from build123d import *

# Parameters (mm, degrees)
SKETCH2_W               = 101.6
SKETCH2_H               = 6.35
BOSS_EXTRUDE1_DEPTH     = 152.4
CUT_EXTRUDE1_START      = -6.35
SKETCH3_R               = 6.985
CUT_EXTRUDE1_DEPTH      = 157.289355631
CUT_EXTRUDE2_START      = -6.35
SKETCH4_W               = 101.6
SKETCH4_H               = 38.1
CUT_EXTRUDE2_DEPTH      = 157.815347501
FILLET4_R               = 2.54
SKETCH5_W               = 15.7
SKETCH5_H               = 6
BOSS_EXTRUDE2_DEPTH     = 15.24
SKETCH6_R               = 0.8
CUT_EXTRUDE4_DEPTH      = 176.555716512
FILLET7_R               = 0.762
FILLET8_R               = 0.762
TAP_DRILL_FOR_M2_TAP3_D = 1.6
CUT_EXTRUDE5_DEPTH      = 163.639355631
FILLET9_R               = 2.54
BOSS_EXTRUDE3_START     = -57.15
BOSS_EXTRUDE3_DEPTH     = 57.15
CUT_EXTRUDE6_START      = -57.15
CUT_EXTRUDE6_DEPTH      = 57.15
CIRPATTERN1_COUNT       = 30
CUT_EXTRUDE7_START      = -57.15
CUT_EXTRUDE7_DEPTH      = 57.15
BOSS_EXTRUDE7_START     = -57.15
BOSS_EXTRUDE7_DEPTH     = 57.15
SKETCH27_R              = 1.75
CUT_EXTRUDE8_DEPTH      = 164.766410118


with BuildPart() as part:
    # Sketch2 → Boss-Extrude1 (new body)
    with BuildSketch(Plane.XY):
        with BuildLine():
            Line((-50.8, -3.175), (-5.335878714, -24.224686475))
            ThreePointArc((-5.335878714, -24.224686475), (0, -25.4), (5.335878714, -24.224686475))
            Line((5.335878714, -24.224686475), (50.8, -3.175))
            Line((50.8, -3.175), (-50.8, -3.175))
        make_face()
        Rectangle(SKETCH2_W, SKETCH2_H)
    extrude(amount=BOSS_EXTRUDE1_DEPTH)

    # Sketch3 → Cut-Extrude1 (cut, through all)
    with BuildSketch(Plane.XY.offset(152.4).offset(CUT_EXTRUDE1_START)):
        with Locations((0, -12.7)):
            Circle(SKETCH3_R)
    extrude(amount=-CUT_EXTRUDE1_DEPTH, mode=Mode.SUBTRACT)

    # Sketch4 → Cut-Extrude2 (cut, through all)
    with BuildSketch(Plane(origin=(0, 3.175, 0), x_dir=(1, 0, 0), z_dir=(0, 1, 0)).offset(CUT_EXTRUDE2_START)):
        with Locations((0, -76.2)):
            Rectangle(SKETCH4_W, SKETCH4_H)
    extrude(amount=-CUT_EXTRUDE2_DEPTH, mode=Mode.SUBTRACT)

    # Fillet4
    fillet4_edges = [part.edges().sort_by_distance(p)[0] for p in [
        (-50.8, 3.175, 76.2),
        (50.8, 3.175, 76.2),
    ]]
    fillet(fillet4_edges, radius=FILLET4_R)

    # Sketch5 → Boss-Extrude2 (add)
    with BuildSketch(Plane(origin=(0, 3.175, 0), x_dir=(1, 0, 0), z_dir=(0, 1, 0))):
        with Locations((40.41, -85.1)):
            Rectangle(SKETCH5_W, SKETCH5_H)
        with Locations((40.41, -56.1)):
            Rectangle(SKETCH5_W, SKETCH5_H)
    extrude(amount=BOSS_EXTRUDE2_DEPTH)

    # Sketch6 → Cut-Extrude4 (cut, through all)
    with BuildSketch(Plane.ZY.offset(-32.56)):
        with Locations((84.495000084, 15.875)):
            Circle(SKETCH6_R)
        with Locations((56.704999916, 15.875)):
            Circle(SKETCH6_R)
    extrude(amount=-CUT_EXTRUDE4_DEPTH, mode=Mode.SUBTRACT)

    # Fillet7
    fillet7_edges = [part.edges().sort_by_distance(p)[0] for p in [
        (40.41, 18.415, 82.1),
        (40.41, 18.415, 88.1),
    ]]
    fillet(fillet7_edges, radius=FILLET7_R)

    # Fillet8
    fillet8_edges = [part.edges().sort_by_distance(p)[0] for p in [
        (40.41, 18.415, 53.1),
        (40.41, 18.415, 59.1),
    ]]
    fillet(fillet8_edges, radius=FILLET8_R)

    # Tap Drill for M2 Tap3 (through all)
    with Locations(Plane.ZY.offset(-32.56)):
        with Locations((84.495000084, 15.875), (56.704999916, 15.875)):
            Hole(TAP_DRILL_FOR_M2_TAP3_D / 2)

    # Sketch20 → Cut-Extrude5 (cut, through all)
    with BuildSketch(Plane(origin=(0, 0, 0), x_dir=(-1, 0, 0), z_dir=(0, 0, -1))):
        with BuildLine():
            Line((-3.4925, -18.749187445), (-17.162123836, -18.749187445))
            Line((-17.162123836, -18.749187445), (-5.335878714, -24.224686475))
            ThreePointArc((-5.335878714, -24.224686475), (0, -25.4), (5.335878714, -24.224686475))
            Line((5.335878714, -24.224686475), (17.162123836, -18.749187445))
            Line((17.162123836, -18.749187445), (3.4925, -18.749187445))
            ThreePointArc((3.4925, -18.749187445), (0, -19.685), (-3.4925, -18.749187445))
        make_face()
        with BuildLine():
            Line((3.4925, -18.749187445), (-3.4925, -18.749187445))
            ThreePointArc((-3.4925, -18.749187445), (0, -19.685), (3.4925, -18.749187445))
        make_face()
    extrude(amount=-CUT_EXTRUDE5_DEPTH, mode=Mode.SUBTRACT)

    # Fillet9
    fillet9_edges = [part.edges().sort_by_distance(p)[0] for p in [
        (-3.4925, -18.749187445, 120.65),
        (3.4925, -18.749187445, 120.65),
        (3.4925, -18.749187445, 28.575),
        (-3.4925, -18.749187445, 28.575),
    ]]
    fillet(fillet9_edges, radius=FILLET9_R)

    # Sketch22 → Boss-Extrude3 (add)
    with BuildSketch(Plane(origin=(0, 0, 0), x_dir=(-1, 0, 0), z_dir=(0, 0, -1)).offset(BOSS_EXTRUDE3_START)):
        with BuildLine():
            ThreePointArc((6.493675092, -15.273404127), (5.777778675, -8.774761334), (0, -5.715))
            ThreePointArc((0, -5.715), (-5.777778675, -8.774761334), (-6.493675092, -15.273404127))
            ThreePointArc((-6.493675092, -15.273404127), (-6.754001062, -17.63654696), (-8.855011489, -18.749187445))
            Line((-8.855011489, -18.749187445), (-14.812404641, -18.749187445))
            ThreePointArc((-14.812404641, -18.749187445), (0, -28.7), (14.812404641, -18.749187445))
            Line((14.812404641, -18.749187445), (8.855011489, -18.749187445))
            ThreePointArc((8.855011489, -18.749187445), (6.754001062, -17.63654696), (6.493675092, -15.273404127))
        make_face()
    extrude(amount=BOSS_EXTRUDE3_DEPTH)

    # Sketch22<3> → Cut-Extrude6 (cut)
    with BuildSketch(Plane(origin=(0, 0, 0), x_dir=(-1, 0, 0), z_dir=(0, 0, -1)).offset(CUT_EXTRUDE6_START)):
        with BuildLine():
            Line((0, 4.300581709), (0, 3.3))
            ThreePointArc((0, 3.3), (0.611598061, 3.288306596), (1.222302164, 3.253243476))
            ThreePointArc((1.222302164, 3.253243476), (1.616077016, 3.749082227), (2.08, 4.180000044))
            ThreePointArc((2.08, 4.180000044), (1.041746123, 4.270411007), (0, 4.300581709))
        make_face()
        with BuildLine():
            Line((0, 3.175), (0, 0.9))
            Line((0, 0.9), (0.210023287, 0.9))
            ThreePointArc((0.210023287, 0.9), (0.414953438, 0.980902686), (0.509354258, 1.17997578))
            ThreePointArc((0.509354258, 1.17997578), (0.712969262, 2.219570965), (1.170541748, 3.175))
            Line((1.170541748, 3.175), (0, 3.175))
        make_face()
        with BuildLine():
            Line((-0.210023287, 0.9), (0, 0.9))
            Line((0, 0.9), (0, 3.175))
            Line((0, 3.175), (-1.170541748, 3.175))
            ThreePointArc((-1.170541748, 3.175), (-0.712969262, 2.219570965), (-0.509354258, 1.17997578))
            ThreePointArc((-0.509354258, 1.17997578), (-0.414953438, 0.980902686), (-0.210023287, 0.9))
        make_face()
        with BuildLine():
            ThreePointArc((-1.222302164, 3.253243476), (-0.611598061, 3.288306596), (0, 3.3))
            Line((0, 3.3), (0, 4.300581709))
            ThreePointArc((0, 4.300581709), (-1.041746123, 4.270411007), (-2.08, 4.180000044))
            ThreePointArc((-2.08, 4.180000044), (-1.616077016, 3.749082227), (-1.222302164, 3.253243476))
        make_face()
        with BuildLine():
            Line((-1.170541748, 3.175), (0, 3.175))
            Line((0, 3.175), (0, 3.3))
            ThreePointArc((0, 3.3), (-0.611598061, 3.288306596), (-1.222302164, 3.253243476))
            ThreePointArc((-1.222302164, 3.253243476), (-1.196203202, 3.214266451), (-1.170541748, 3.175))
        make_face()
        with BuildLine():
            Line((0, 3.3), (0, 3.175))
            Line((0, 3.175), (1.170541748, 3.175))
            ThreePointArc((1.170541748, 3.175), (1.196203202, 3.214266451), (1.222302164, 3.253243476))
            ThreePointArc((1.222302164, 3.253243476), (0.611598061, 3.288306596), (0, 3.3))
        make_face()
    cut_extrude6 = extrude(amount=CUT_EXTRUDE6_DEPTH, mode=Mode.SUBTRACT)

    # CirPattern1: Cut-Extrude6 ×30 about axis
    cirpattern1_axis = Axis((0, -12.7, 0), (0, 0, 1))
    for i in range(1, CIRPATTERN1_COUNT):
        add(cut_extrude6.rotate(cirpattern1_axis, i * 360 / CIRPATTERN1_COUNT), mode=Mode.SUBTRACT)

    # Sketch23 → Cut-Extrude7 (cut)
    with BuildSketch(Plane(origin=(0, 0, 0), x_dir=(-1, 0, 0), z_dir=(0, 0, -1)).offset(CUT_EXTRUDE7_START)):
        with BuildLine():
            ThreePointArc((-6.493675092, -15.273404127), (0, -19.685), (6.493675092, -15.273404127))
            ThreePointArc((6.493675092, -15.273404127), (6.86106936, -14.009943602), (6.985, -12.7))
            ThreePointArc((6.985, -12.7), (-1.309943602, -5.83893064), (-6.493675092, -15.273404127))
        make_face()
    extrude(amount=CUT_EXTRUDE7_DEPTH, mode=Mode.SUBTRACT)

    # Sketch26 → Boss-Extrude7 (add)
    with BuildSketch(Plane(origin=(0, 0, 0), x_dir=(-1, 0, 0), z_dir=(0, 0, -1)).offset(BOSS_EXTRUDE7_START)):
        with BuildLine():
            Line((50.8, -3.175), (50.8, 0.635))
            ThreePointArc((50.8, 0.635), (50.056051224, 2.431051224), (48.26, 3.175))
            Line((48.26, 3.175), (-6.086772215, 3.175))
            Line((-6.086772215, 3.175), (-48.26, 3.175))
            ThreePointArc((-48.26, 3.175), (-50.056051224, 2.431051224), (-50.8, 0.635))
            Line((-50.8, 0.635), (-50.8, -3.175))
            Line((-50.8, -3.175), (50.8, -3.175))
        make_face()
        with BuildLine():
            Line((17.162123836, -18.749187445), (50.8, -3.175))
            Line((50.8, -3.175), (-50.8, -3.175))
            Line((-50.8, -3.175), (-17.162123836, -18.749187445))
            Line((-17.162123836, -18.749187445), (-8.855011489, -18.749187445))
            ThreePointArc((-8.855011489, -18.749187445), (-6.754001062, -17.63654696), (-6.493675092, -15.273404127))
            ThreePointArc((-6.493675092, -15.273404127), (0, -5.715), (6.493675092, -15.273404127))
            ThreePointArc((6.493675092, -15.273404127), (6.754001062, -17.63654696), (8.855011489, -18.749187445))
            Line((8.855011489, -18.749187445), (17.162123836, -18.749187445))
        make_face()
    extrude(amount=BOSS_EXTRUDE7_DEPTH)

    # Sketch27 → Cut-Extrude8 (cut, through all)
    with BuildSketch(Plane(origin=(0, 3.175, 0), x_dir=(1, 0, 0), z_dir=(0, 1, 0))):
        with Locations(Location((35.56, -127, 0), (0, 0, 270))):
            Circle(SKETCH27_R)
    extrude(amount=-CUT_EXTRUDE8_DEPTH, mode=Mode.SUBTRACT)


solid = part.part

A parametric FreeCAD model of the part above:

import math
import FreeCAD as App
import Part
import Sketcher
Q = App.Units.Quantity


def edges_at(feature, points):
    """Names of the edges that pass closest to the given points."""
    edges = feature.Shape.Edges
    near = lambda p: min(range(len(edges)), key=lambda i: edges[i].distToShape(Part.Vertex(*p))[0])
    return sorted({f"Edge{near(p) + 1}" for p in points})


def add_polygon(sketch, points):
    """Adds a closed chain of lines whose ends are joined by coincident constraints."""
    first, n = sketch.GeometryCount, len(points)
    for a, b in zip(points, points[1:] + points[:1]):
        sketch.addGeometry(Part.LineSegment(App.Vector(*a, 0), App.Vector(*b, 0)), False)
    for i in range(n):
        sketch.addConstraint(Sketcher.Constraint("Coincident", first + i, 2, first + (i + 1) % n, 1))

doc = App.newDocument("Part")
body = doc.addObject("PartDesign::Body", "Body")

# Sketch on XY plane
sketch1 = body.newObject("Sketcher::SketchObject", "Sketch")
sketch1.AttachmentSupport = (doc.getObject("XY_Plane"), [""])
sketch1.MapMode = "FlatFace"
sketch1.addGeometry(Part.LineSegment(App.Vector(-51, -3, 0), App.Vector(-5, -24, 0)), False)
sketch1.addGeometry(Part.ArcOfCircle(Part.Circle(App.Vector(0, -13, 0), App.Vector(0, 0, 1), 13), math.radians(-115), math.radians(-65)), False)
sketch1.addGeometry(Part.LineSegment(App.Vector(5, -24, 0), App.Vector(51, -3, 0)), False)
sketch1.addGeometry(Part.LineSegment(App.Vector(51, -3, 0), App.Vector(51, 3, 0)), False)
sketch1.addGeometry(Part.LineSegment(App.Vector(51, 3, 0), App.Vector(-51, 3, 0)), False)
sketch1.addGeometry(Part.LineSegment(App.Vector(-51, 3, 0), App.Vector(-51, -3, 0)), False)
sketch1.addConstraint(Sketcher.Constraint("Tangent", 0, 2, 1, 1))
sketch1.addConstraint(Sketcher.Constraint("Tangent", 1, 2, 2, 1))
sketch1.addConstraint(Sketcher.Constraint("Coincident", 2, 2, 3, 1))
sketch1.addConstraint(Sketcher.Constraint("Coincident", 3, 2, 4, 1))
sketch1.addConstraint(Sketcher.Constraint("Coincident", 4, 2, 5, 1))
sketch1.addConstraint(Sketcher.Constraint("Coincident", 5, 2, 0, 1))
sketch1.addConstraint(Sketcher.Constraint("Vertical", 3))
sketch1.addConstraint(Sketcher.Constraint("Horizontal", 4))
sketch1.addConstraint(Sketcher.Constraint("Vertical", 5))
sketch1.addConstraint(Sketcher.Constraint("Symmetric", 2, 2, 4, 2, -1, 1))
sketch1.addConstraint(Sketcher.Constraint("Symmetric", 0, 2, 1, 2, -2))
sketch1.addConstraint(Sketcher.Constraint("Radius", 1, Q("0.5 in")))
sketch1.addConstraint(Sketcher.Constraint("DistanceX", 4, 2, 4, 1, Q("4 in")))
sketch1.addConstraint(Sketcher.Constraint("DistanceY", 3, 1, 3, 2, Q("0.25 in")))
sketch1.addConstraint(Sketcher.Constraint("DistanceY", 1, 3, -1, 1, Q("0.5 in")))
pad1 = body.newObject("PartDesign::Pad", "Pad")
pad1.Profile = sketch1
pad1.Length = Q("6 in")

# Sketch on XY plane
sketch2 = body.newObject("Sketcher::SketchObject", "Sketch001")
sketch2.AttachmentSupport = (doc.getObject("XY_Plane"), [""])
sketch2.MapMode = "FlatFace"
sketch2.AttachmentOffset = App.Placement(App.Vector(0, 0, 5.75 * 25.4), App.Rotation())
sketch2.addGeometry(Part.Circle(App.Vector(0, -13, 0), App.Vector(0, 0, 1), 7), False)
sketch2.addConstraint(Sketcher.Constraint("PointOnObject", 0, 3, -2))
sketch2.addConstraint(Sketcher.Constraint("Diameter", 0, Q("0.55 in")))
sketch2.addConstraint(Sketcher.Constraint("DistanceY", 0, 3, -1, 1, Q("0.5 in")))
pocket1 = body.newObject("PartDesign::Pocket", "Pocket")
pocket1.Profile = sketch2
pocket1.Type = "ThroughAll"

# Sketch on XZ plane
sketch3 = body.newObject("Sketcher::SketchObject", "Sketch002")
sketch3.AttachmentSupport = (doc.getObject("XZ_Plane"), [""])
sketch3.MapMode = "FlatFace"
sketch3.AttachmentOffset = App.Placement(App.Vector(0, 0, 0.125 * 25.4), App.Rotation())
add_polygon(sketch3, [(-51, 57), (-51, 95), (51, 95), (51, 57)])  # lines 0-3
sketch3.addConstraint(Sketcher.Constraint("Vertical", 0))
sketch3.addConstraint(Sketcher.Constraint("Horizontal", 1))
sketch3.addConstraint(Sketcher.Constraint("Vertical", 2))
sketch3.addConstraint(Sketcher.Constraint("Horizontal", 3))
sketch3.addConstraint(Sketcher.Constraint("DistanceX", 1, 1, 1, 2, Q("4 in")))
sketch3.addConstraint(Sketcher.Constraint("DistanceY", 0, 1, 0, 2, Q("1.5 in")))
sketch3.addConstraint(Sketcher.Constraint("DistanceX", 0, 2, -1, 1, Q("2 in")))
sketch3.addConstraint(Sketcher.Constraint("DistanceY", -1, 1, 0, 2, Q("3.75 in")))
pocket2 = body.newObject("PartDesign::Pocket", "Pocket001")
pocket2.Profile = sketch3
pocket2.Type = "ThroughAll"
pocket2.Reversed = True
doc.recompute()

fillet = body.newObject("PartDesign::Fillet", "Fillet")
fillet.Base = (pocket2, edges_at(pocket2, [(-50.8, 3.175, 76.2), (50.8, 3.175, 76.2)]))
fillet.Radius = Q("0.1 in")

# Sketch on XZ plane
sketch4 = body.newObject("Sketcher::SketchObject", "Sketch003")
sketch4.AttachmentSupport = (doc.getObject("XZ_Plane"), [""])
sketch4.MapMode = "FlatFace"
sketch4.AttachmentOffset = App.Placement(App.Vector(0, 0, -0.125 * 25.4), App.Rotation())
add_polygon(sketch4, [(33, 82), (33, 88), (48, 88), (48, 82)])  # lines 0-3
add_polygon(sketch4, [(33, 53), (33, 59), (48, 59), (48, 53)])  # lines 4-7
sketch4.addConstraint(Sketcher.Constraint("Vertical", 0))
sketch4.addConstraint(Sketcher.Constraint("Horizontal", 1))
sketch4.addConstraint(Sketcher.Constraint("Vertical", 2))
sketch4.addConstraint(Sketcher.Constraint("Horizontal", 3))
sketch4.addConstraint(Sketcher.Constraint("Vertical", 4))
sketch4.addConstraint(Sketcher.Constraint("Horizontal", 5))
sketch4.addConstraint(Sketcher.Constraint("Vertical", 6))
sketch4.addConstraint(Sketcher.Constraint("Horizontal", 7))
sketch4.addConstraint(Sketcher.Constraint("Vertical", 3, 2, 4, 2))
sketch4.addConstraint(Sketcher.Constraint("Vertical", 2, 2, 5, 2))
sketch4.addConstraint(Sketcher.Constraint("Equal", 2, 4))
sketch4.addConstraint(Sketcher.Constraint("DistanceX", -1, 1, 1, 2, Q("1.9 in")))
sketch4.addConstraint(Sketcher.Constraint("DistanceX", 1, 1, 1, 2, 15.7))
sketch4.addConstraint(Sketcher.Constraint("DistanceY", 0, 1, 0, 2, 6.0))
sketch4.addConstraint(Sketcher.Constraint("DistanceY", -1, 1, 0, 2, 88.1))
sketch4.addConstraint(Sketcher.Constraint("DistanceY", -1, 1, 4, 2, 59.1))
pad2 = body.newObject("PartDesign::Pad", "Pad001")
pad2.Profile = sketch4
pad2.Length = Q("0.6 in")
pad2.Reversed = True

# Sketch on YZ plane
sketch5 = body.newObject("Sketcher::SketchObject", "Sketch004")
sketch5.AttachmentSupport = (doc.getObject("YZ_Plane"), [""])
sketch5.MapMode = "FlatFace"
sketch5.AttachmentOffset = App.Placement(App.Vector(0, 0, 32.56), App.Rotation())
sketch5.addGeometry(Part.Circle(App.Vector(15.9, 84.5, 0), App.Vector(0, 0, 1), 0.8), False)
sketch5.addGeometry(Part.Circle(App.Vector(15.9, 56.7, 0), App.Vector(0, 0, 1), 0.8), False)
sketch5.addConstraint(Sketcher.Constraint("Equal", 0, 1))
sketch5.addConstraint(Sketcher.Constraint("Vertical", 0, 3, 1, 3))
sketch5.addConstraint(Sketcher.Constraint("Diameter", 0, 1.6))
sketch5.addConstraint(Sketcher.Constraint("DistanceX", -1, 1, 0, 3, Q("0.625 in")))
sketch5.addConstraint(Sketcher.Constraint("DistanceY", -1, 1, 0, 3, 84.495))
sketch5.addConstraint(Sketcher.Constraint("DistanceY", -1, 1, 1, 3, 56.705))
pocket3 = body.newObject("PartDesign::Pocket", "Pocket002")
pocket3.Profile = sketch5
pocket3.Type = "ThroughAll"
pocket3.Reversed = True
doc.recompute()

fillet2 = body.newObject("PartDesign::Fillet", "Fillet001")
fillet2.Base = (pocket3, edges_at(pocket3, [(40.41, 18.415, 82.1), (40.41, 18.415, 88.1)]))
fillet2.Radius = Q("0.03 in")
doc.recompute()

fillet3 = body.newObject("PartDesign::Fillet", "Fillet002")
fillet3.Base = (fillet2, edges_at(fillet2, [(40.41, 18.415, 53.1), (40.41, 18.415, 59.1)]))
fillet3.Radius = Q("0.03 in")

# Sketch on YZ plane
sketch6 = body.newObject("Sketcher::SketchObject", "Sketch005")
sketch6.AttachmentSupport = (doc.getObject("YZ_Plane"), [""])
sketch6.MapMode = "FlatFace"
sketch6.AttachmentOffset = App.Placement(App.Vector(0, 0, 32.56), App.Rotation())
sketch6.addGeometry(Part.Circle(App.Vector(15.9, 84.5, 0), App.Vector(0, 0, 1), 0.8), False)
sketch6.addGeometry(Part.Circle(App.Vector(15.9, 56.7, 0), App.Vector(0, 0, 1), 0.8), False)
sketch6.addConstraint(Sketcher.Constraint("Equal", 0, 1))
sketch6.addConstraint(Sketcher.Constraint("Vertical", 0, 3, 1, 3))
sketch6.addConstraint(Sketcher.Constraint("Diameter", 0, 1.6))
sketch6.addConstraint(Sketcher.Constraint("DistanceX", -1, 1, 0, 3, Q("0.625 in")))
sketch6.addConstraint(Sketcher.Constraint("DistanceY", -1, 1, 0, 3, 84.495))
sketch6.addConstraint(Sketcher.Constraint("DistanceY", -1, 1, 1, 3, 56.705))
doc.recompute()
hole = body.newObject("PartDesign::Hole", "Hole")
hole.Profile = sketch6
hole.ThreadType = "None"
hole.Diameter = 1.6
hole.DepthType = "ThroughAll"
hole.Reversed = True

# Sketch on XY plane
sketch7 = body.newObject("Sketcher::SketchObject", "Sketch006")
sketch7.AttachmentSupport = (doc.getObject("XY_Plane"), [""])
sketch7.MapMode = "FlatFace"
sketch7.addGeometry(Part.LineSegment(App.Vector(17, -19, 0), App.Vector(5, -24, 0)), False)
sketch7.addGeometry(Part.ArcOfCircle(Part.Circle(App.Vector(0, -13, 0), App.Vector(0, 0, 1), 13), math.radians(-115), math.radians(-65)), False)
sketch7.addGeometry(Part.LineSegment(App.Vector(-5, -24, 0), App.Vector(-17, -19, 0)), False)
sketch7.addGeometry(Part.LineSegment(App.Vector(-17, -19, 0), App.Vector(17, -19, 0)), False)
sketch7.addConstraint(Sketcher.Constraint("Tangent", 0, 2, 1, 2))
sketch7.addConstraint(Sketcher.Constraint("Tangent", 1, 1, 2, 1))
sketch7.addConstraint(Sketcher.Constraint("Coincident", 2, 2, 3, 1))
sketch7.addConstraint(Sketcher.Constraint("Coincident", 3, 2, 0, 1))
sketch7.addConstraint(Sketcher.Constraint("Horizontal", 3))
sketch7.addConstraint(Sketcher.Constraint("Symmetric", 0, 2, 1, 1, -2))
sketch7.addConstraint(Sketcher.Constraint("Radius", 1, Q("0.5 in")))
sketch7.addConstraint(Sketcher.Constraint("DistanceY", 1, 3, -1, 1, Q("0.5 in")))
sketch7.addConstraint(Sketcher.Constraint("DistanceY", 1, 1, 2, 2, 5.475499))
sketch7.addConstraint(Sketcher.Constraint("DistanceX", 3, 1, 3, 2, 34.324248))
pocket4 = body.newObject("PartDesign::Pocket", "Pocket003")
pocket4.Profile = sketch7
pocket4.Type = "ThroughAll"
pocket4.Reversed = True
doc.recompute()

fillet4 = body.newObject("PartDesign::Fillet", "Fillet003")
fillet4.Base = (pocket4, edges_at(pocket4, [
    (-3.493, -18.749, 120.65),
    (3.493, -18.749, 120.65),
    (3.493, -18.749, 28.575),
    (-3.493, -18.749, 28.575),
]))
fillet4.Radius = Q("0.1 in")

# Sketch on XY plane
sketch8 = body.newObject("Sketcher::SketchObject", "Sketch007")
sketch8.AttachmentSupport = (doc.getObject("XY_Plane"), [""])
sketch8.MapMode = "FlatFace"
sketch8.AttachmentOffset = App.Placement(App.Vector(0, 0, 2.25 * 25.4), App.Rotation())
sketch8.addGeometry(Part.ArcOfCircle(Part.Circle(App.Vector(0, -12.7, 0), App.Vector(0, 0, 1), 7), math.radians(90), math.radians(202)), False)
sketch8.addGeometry(Part.ArcOfCircle(Part.Circle(App.Vector(0, -12.7, 0), App.Vector(0, 0, 1), 7), math.radians(-22), math.radians(90)), False)
sketch8.addGeometry(Part.ArcOfCircle(Part.Circle(App.Vector(8.9, -16.2, 0), App.Vector(0, 0, 1), 2.5), math.radians(158), math.radians(270)), False)
sketch8.addGeometry(Part.LineSegment(App.Vector(8.9, -18.7, 0), App.Vector(14.8, -18.7, 0)), False)
sketch8.addGeometry(Part.ArcOfCircle(Part.Circle(App.Vector(0, -12.7, 0), App.Vector(0, 0, 1), 16), math.radians(-158), math.radians(-22)), False)
sketch8.addGeometry(Part.LineSegment(App.Vector(-14.8, -18.7, 0), App.Vector(-8.9, -18.7, 0)), False)
sketch8.addGeometry(Part.ArcOfCircle(Part.Circle(App.Vector(-8.9, -16.2, 0), App.Vector(0, 0, 1), 2.5), math.radians(-90), math.radians(22)), False)
sketch8.addConstraint(Sketcher.Constraint("Tangent", 0, 1, 1, 2))
sketch8.addConstraint(Sketcher.Constraint("Tangent", 1, 1, 2, 1))
sketch8.addConstraint(Sketcher.Constraint("Tangent", 2, 2, 3, 1))
sketch8.addConstraint(Sketcher.Constraint("Coincident", 3, 2, 4, 2))
sketch8.addConstraint(Sketcher.Constraint("Coincident", 4, 1, 5, 1))
sketch8.addConstraint(Sketcher.Constraint("Tangent", 5, 2, 6, 1))
sketch8.addConstraint(Sketcher.Constraint("Tangent", 6, 2, 0, 2))
sketch8.addConstraint(Sketcher.Constraint("Horizontal", 3))
sketch8.addConstraint(Sketcher.Constraint("Horizontal", 5))
sketch8.addConstraint(Sketcher.Constraint("Coincident", 4, 3, 0, 3))
sketch8.addConstraint(Sketcher.Constraint("Equal", 0, 1))
sketch8.addConstraint(Sketcher.Constraint("Equal", 2, 6))
sketch8.addConstraint(Sketcher.Constraint("Symmetric", 2, 3, 6, 3, -2))
sketch8.addConstraint(Sketcher.Constraint("PointOnObject", 0, 1, -2))
sketch8.addConstraint(Sketcher.Constraint("Radius", 2, Q("0.1 in")))
sketch8.addConstraint(Sketcher.Constraint("Radius", 0, Q("0.275 in")))
sketch8.addConstraint(Sketcher.Constraint("DistanceY", 0, 3, -1, 1, Q("0.5 in")))
sketch8.addConstraint(Sketcher.Constraint("Radius", 4, 16.0))
sketch8.addConstraint(Sketcher.Constraint("DistanceX", 3, 1, 3, 2, 5.957393))
pad3 = body.newObject("PartDesign::Pad", "Pad002")
pad3.Profile = sketch8
pad3.Length = Q("2.25 in")
pad3.Reversed = True

# Sketch on XY plane
sketch9 = body.newObject("Sketcher::SketchObject", "Sketch008")
sketch9.AttachmentSupport = (doc.getObject("XY_Plane"), [""])
sketch9.MapMode = "FlatFace"
sketch9.AttachmentOffset = App.Placement(App.Vector(0, 0, 2.25 * 25.4), App.Rotation())
sketch9.addGeometry(Part.ArcOfCircle(Part.Circle(App.Vector(-4.69, 0.9, 0), App.Vector(0, 0, 1), 4.19), math.radians(34.13), math.radians(51.44)), False)
sketch9.addGeometry(Part.ArcOfCircle(Part.Circle(App.Vector(0, -13.7, 0), App.Vector(0, 0, 1), 18), math.radians(90), math.radians(96.64)), False)
sketch9.addGeometry(Part.ArcOfCircle(Part.Circle(App.Vector(0, -13.7, 0), App.Vector(0, 0, 1), 18), math.radians(83.36), math.radians(90)), False)
sketch9.addGeometry(Part.ArcOfCircle(Part.Circle(App.Vector(4.69, 0.9, 0), App.Vector(0, 0, 1), 4.19), math.radians(128.56), math.radians(145.87)), False)
sketch9.addGeometry(Part.ArcOfCircle(Part.Circle(App.Vector(4.69, 0.9, 0), App.Vector(0, 0, 1), 4.19), math.radians(145.87), math.radians(147.15)), False)
sketch9.addGeometry(Part.ArcOfCircle(Part.Circle(App.Vector(4.69, 0.9, 0), App.Vector(0, 0, 1), 4.19), math.radians(147), math.radians(176)), False)
sketch9.addGeometry(Part.ArcOfCircle(Part.Circle(App.Vector(0.21, 1.2, 0), App.Vector(0, 0, 1), 0.3), math.radians(-90), math.radians(-4)), False)
sketch9.addGeometry(Part.LineSegment(App.Vector(0.21, 0.9, 0), App.Vector(-0.21, 0.9, 0)), False)
sketch9.addGeometry(Part.ArcOfCircle(Part.Circle(App.Vector(-0.21, 1.2, 0), App.Vector(0, 0, 1), 0.3), math.radians(-176), math.radians(-90)), False)
sketch9.addGeometry(Part.ArcOfCircle(Part.Circle(App.Vector(-4.69, 0.9, 0), App.Vector(0, 0, 1), 4.19), math.radians(4), math.radians(33)), False)
sketch9.addGeometry(Part.ArcOfCircle(Part.Circle(App.Vector(-4.69, 0.9, 0), App.Vector(0, 0, 1), 4.19), math.radians(32.85), math.radians(34.13)), False)
sketch9.addConstraint(Sketcher.Constraint("Coincident", 0, 2, 1, 2))
sketch9.addConstraint(Sketcher.Constraint("Tangent", 1, 1, 2, 2))
sketch9.addConstraint(Sketcher.Constraint("Coincident", 2, 1, 3, 1))
sketch9.addConstraint(Sketcher.Constraint("Tangent", 3, 2, 4, 1))
sketch9.addConstraint(Sketcher.Constraint("Tangent", 4, 2, 5, 1))
sketch9.addConstraint(Sketcher.Constraint("Tangent", 5, 2, 6, 2))
sketch9.addConstraint(Sketcher.Constraint("Tangent", 6, 1, 7, 1))
sketch9.addConstraint(Sketcher.Constraint("Tangent", 7, 2, 8, 2))
sketch9.addConstraint(Sketcher.Constraint("Tangent", 8, 1, 9, 1))
sketch9.addConstraint(Sketcher.Constraint("Tangent", 9, 2, 10, 1))
sketch9.addConstraint(Sketcher.Constraint("Tangent", 10, 2, 0, 1))
sketch9.addConstraint(Sketcher.Constraint("Horizontal", 7))
sketch9.addConstraint(Sketcher.Constraint("Coincident", 5, 3, 3, 3))
sketch9.addConstraint(Sketcher.Constraint("Coincident", 9, 3, 0, 3))
sketch9.addConstraint(Sketcher.Constraint("Equal", 1, 2))
sketch9.addConstraint(Sketcher.Constraint("Equal", 0, 3))
sketch9.addConstraint(Sketcher.Constraint("Equal", 6, 8))
sketch9.addConstraint(Sketcher.Constraint("Symmetric", 0, 3, 3, 3, -2))
sketch9.addConstraint(Sketcher.Constraint("PointOnObject", 1, 3, -2))
sketch9.addConstraint(Sketcher.Constraint("PointOnObject", 1, 1, -2))
sketch9.addConstraint(Sketcher.Constraint("Horizontal", 9, 3, 6, 1))
sketch9.addConstraint(Sketcher.Constraint("Horizontal", 4, 2, 9, 2))
sketch9.addConstraint(Sketcher.Constraint("Horizontal", 3, 2, 10, 2))
sketch9.addConstraint(Sketcher.Constraint("Radius", 1, 18.0))
sketch9.addConstraint(Sketcher.Constraint("Radius", 6, 0.3))
sketch9.addConstraint(Sketcher.Constraint("DistanceY", -1, 1, 4, 2, Q("0.125 in")))
sketch9.addConstraint(Sketcher.Constraint("Radius", 0, 4.194557))
sketch9.addConstraint(Sketcher.Constraint("DistanceY", -1, 1, 0, 3, 0.9))
sketch9.addConstraint(Sketcher.Constraint("DistanceX", 0, 2, -1, 1, 2.08))
sketch9.addConstraint(Sketcher.Constraint("DistanceY", -1, 1, 0, 2, 4.18))
sketch9.addConstraint(Sketcher.Constraint("DistanceY", 3, 2, 1, 1, 1.047338))
pocket5 = body.newObject("PartDesign::Pocket", "Pocket004")
pocket5.Profile = sketch9
pocket5.Length = Q("2.25 in")
doc.recompute()

datumline = body.newObject("PartDesign::Line", "DatumLine")
datumline.Placement = App.Placement(App.Vector(0, -12.7, 0), App.Rotation(App.Vector(0, 0, 1), App.Vector(0, 0, 1)))
polarpattern = body.newObject("PartDesign::PolarPattern", "PolarPattern")
polarpattern.Originals = [pocket5]
polarpattern.Axis = (datumline, [""])
polarpattern.Angle = 360
polarpattern.Occurrences = 30
body.Tip = polarpattern

# Sketch on XY plane
sketch10 = body.newObject("Sketcher::SketchObject", "Sketch009")
sketch10.AttachmentSupport = (doc.getObject("XY_Plane"), [""])
sketch10.MapMode = "FlatFace"
sketch10.AttachmentOffset = App.Placement(App.Vector(0, 0, 2.25 * 25.4), App.Rotation())
sketch10.addGeometry(Part.ArcOfCircle(Part.Circle(App.Vector(0, -12.7, 0), App.Vector(0, 0, 1), 7), math.radians(-158), math.radians(-22)), False)
sketch10.addGeometry(Part.ArcOfCircle(Part.Circle(App.Vector(0, -12.7, 0), App.Vector(0, 0, 1), 7), math.radians(180), math.radians(202)), False)
sketch10.addGeometry(Part.ArcOfCircle(Part.Circle(App.Vector(0, -12.7, 0), App.Vector(0, 0, 1), 7), math.radians(-22), math.radians(180)), False)
sketch10.addConstraint(Sketcher.Constraint("Tangent", 0, 1, 1, 2))
sketch10.addConstraint(Sketcher.Constraint("Tangent", 1, 1, 2, 2))
sketch10.addConstraint(Sketcher.Constraint("Tangent", 2, 1, 0, 2))
sketch10.addConstraint(Sketcher.Constraint("Symmetric", 0, 1, 2, 1, -2))
sketch10.addConstraint(Sketcher.Constraint("Horizontal", 2, 3, 1, 1))
sketch10.addConstraint(Sketcher.Constraint("Radius", 0, Q("0.275 in")))
sketch10.addConstraint(Sketcher.Constraint("DistanceY", 0, 3, -1, 1, Q("0.5 in")))
sketch10.addConstraint(Sketcher.Constraint("DistanceX", 0, 1, 2, 1, 12.98735))
pocket6 = body.newObject("PartDesign::Pocket", "Pocket005")
pocket6.Profile = sketch10
pocket6.Length = Q("2.25 in")

# Sketch on XY plane
sketch11 = body.newObject("Sketcher::SketchObject", "Sketch010")
sketch11.AttachmentSupport = (doc.getObject("XY_Plane"), [""])
sketch11.MapMode = "FlatFace"
sketch11.AttachmentOffset = App.Placement(App.Vector(0, 0, 2.25 * 25.4), App.Rotation())
sketch11.addGeometry(Part.LineSegment(App.Vector(-50.8, -3.2, 0), App.Vector(-50.8, 0.6, 0)), False)
sketch11.addGeometry(Part.ArcOfCircle(Part.Circle(App.Vector(-48.3, 0.6, 0), App.Vector(0, 0, 1), 2.5), math.radians(90), math.radians(180)), False)
sketch11.addGeometry(Part.LineSegment(App.Vector(-48.3, 3.2, 0), App.Vector(48.3, 3.2, 0)), False)
sketch11.addGeometry(Part.ArcOfCircle(Part.Circle(App.Vector(48.3, 0.6, 0), App.Vector(0, 0, 1), 2.5), math.radians(0), math.radians(90)), False)
sketch11.addGeometry(Part.LineSegment(App.Vector(50.8, 0.6, 0), App.Vector(50.8, -3.2, 0)), False)
sketch11.addGeometry(Part.LineSegment(App.Vector(50.8, -3.2, 0), App.Vector(17.2, -18.7, 0)), False)
sketch11.addGeometry(Part.LineSegment(App.Vector(17.2, -18.7, 0), App.Vector(8.9, -18.7, 0)), False)
sketch11.addGeometry(Part.ArcOfCircle(Part.Circle(App.Vector(8.9, -16.2, 0), App.Vector(0, 0, 1), 2.5), math.radians(158), math.radians(270)), False)
sketch11.addGeometry(Part.ArcOfCircle(Part.Circle(App.Vector(0, -12.7, 0), App.Vector(0, 0, 1), 7), math.radians(-22), math.radians(202)), False)
sketch11.addGeometry(Part.ArcOfCircle(Part.Circle(App.Vector(-8.9, -16.2, 0), App.Vector(0, 0, 1), 2.5), math.radians(-90), math.radians(22)), False)
sketch11.addGeometry(Part.LineSegment(App.Vector(-8.9, -18.7, 0), App.Vector(-17.2, -18.7, 0)), False)
sketch11.addGeometry(Part.LineSegment(App.Vector(-17.2, -18.7, 0), App.Vector(-50.8, -3.2, 0)), False)
sketch11.addConstraint(Sketcher.Constraint("Tangent", 0, 2, 1, 2))
sketch11.addConstraint(Sketcher.Constraint("Tangent", 1, 1, 2, 1))
sketch11.addConstraint(Sketcher.Constraint("Tangent", 2, 2, 3, 2))
sketch11.addConstraint(Sketcher.Constraint("Tangent", 3, 1, 4, 1))
sketch11.addConstraint(Sketcher.Constraint("Coincident", 4, 2, 5, 1))
sketch11.addConstraint(Sketcher.Constraint("Coincident", 5, 2, 6, 1))
sketch11.addConstraint(Sketcher.Constraint("Tangent", 6, 2, 7, 2))
sketch11.addConstraint(Sketcher.Constraint("Tangent", 7, 1, 8, 1))
sketch11.addConstraint(Sketcher.Constraint("Tangent", 8, 2, 9, 2))
sketch11.addConstraint(Sketcher.Constraint("Tangent", 9, 1, 10, 1))
sketch11.addConstraint(Sketcher.Constraint("Coincident", 10, 2, 11, 1))
sketch11.addConstraint(Sketcher.Constraint("Coincident", 11, 2, 0, 1))
sketch11.addConstraint(Sketcher.Constraint("Vertical", 0))
sketch11.addConstraint(Sketcher.Constraint("Horizontal", 2))
sketch11.addConstraint(Sketcher.Constraint("Vertical", 4))
sketch11.addConstraint(Sketcher.Constraint("Horizontal", 6))
sketch11.addConstraint(Sketcher.Constraint("Horizontal", 10))
sketch11.addConstraint(Sketcher.Constraint("Equal", 1, 3))
sketch11.addConstraint(Sketcher.Constraint("Equal", 3, 7))
sketch11.addConstraint(Sketcher.Constraint("Equal", 7, 9))
sketch11.addConstraint(Sketcher.Constraint("Symmetric", 7, 3, 9, 3, -2))
sketch11.addConstraint(Sketcher.Constraint("Symmetric", 4, 2, 11, 2, -2))
sketch11.addConstraint(Sketcher.Constraint("Equal", 6, 10))
sketch11.addConstraint(Sketcher.Constraint("Radius", 1, Q("0.1 in")))
sketch11.addConstraint(Sketcher.Constraint("DistanceX", 2, 1, 2, 2, Q("3.8 in")))
sketch11.addConstraint(Sketcher.Constraint("Radius", 8, Q("0.275 in")))
sketch11.addConstraint(Sketcher.Constraint("DistanceY", 0, 1, 0, 2, Q("0.15 in")))
sketch11.addConstraint(Sketcher.Constraint("DistanceY", 8, 3, -1, 1, Q("0.5 in")))
sketch11.addConstraint(Sketcher.Constraint("DistanceY", -1, 1, 1, 3, Q("0.025 in")))
sketch11.addConstraint(Sketcher.Constraint("DistanceX", 10, 2, 7, 1, 23.655799))
sketch11.addConstraint(Sketcher.Constraint("DistanceX", 6, 2, 6, 1, 8.307112))
pad4 = body.newObject("PartDesign::Pad", "Pad003")
pad4.Profile = sketch11
pad4.Length = Q("2.25 in")
pad4.Reversed = True

# Sketch on XZ plane
sketch12 = body.newObject("Sketcher::SketchObject", "Sketch011")
sketch12.AttachmentSupport = (doc.getObject("XZ_Plane"), [""])
sketch12.MapMode = "FlatFace"
sketch12.AttachmentOffset = App.Placement(App.Vector(0, 0, -0.125 * 25.4), App.Rotation())
sketch12.addGeometry(Part.Circle(App.Vector(35.6, 127, 0), App.Vector(0, 0, 1), 1.8), False)
sketch12.addConstraint(Sketcher.Constraint("DistanceY", -1, 1, 0, 3, Q("5 in")))
sketch12.addConstraint(Sketcher.Constraint("DistanceX", -1, 1, 0, 3, Q("1.4 in")))
sketch12.addConstraint(Sketcher.Constraint("Diameter", 0, 3.5))
pocket7 = body.newObject("PartDesign::Pocket", "Pocket006")
pocket7.Profile = sketch12
pocket7.Type = "ThroughAll"
pocket7.Reversed = True

doc.recompute()
